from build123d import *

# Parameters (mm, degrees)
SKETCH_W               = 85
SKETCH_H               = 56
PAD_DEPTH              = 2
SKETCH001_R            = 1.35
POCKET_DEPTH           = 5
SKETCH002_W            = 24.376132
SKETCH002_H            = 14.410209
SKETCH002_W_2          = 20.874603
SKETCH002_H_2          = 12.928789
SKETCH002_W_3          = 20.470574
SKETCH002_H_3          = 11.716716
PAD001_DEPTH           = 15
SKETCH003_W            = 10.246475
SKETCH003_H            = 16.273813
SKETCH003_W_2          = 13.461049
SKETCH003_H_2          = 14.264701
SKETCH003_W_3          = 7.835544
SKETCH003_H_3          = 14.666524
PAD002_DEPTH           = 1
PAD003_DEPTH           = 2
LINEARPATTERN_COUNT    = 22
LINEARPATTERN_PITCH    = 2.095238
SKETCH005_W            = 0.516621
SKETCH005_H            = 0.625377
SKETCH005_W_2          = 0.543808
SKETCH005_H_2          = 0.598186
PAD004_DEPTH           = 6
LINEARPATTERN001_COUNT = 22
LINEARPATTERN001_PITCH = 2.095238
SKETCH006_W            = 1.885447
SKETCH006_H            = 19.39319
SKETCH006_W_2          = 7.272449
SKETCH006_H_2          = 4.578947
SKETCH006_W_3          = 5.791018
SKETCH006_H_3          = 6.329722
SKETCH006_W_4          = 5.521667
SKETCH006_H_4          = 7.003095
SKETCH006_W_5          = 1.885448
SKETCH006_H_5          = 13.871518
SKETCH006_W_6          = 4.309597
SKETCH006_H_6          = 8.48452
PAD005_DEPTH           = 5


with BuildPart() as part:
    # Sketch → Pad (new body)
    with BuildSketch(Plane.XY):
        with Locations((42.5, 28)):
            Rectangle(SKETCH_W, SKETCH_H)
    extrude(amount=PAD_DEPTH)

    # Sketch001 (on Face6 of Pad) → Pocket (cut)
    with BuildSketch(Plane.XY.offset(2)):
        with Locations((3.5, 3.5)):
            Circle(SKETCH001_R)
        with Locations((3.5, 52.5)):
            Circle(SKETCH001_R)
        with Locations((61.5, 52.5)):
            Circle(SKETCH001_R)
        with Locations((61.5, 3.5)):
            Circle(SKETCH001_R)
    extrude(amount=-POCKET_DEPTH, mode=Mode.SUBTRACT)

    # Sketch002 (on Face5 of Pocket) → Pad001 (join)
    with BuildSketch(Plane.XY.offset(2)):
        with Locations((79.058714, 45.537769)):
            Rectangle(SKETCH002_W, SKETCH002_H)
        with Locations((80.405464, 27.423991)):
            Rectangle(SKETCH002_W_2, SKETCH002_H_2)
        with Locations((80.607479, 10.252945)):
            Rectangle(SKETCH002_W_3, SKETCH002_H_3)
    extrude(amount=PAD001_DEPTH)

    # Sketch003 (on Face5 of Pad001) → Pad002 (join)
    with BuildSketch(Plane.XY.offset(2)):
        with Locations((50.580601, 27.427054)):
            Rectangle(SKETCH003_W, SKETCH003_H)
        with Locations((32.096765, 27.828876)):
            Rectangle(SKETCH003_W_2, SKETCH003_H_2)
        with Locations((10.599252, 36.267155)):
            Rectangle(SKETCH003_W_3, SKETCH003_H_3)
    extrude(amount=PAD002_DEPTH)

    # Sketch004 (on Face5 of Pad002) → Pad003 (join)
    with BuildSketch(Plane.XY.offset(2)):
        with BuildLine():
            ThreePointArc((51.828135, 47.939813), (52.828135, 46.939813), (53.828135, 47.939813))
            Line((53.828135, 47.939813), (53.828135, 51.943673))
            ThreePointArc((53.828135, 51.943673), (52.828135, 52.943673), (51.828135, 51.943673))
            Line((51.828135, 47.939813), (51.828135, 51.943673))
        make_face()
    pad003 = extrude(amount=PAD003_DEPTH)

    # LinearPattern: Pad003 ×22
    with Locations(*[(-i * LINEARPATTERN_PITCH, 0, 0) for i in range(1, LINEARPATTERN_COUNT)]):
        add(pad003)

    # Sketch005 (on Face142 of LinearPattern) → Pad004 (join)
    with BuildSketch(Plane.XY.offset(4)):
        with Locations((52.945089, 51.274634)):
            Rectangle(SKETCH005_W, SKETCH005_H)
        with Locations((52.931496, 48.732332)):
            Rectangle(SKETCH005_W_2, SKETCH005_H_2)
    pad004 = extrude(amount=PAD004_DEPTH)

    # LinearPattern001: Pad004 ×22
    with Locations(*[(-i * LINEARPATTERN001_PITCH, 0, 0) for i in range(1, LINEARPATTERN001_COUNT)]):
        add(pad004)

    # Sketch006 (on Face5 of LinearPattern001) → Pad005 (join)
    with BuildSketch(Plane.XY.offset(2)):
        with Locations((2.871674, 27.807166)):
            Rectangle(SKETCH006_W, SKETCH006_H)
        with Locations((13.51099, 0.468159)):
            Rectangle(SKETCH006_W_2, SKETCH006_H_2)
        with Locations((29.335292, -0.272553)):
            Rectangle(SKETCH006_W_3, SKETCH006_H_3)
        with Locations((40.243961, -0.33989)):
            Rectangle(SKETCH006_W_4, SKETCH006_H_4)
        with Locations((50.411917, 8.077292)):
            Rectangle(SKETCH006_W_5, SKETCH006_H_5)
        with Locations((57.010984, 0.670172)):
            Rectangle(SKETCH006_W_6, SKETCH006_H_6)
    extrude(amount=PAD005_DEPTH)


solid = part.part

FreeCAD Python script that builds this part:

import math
import FreeCAD as App
import Part
import Sketcher

doc = App.newDocument("Part")
body = doc.addObject("PartDesign::Body", "Body")

sketch1 = body.newObject("Sketcher::SketchObject", "Sketch")
sketch1.AttachmentSupport = (doc.getObject("XY_Plane"), [""])
sketch1.MapMode = "FlatFace"
sketch1.addGeometry([
    Part.LineSegment(App.Vector(0, 56, 0), App.Vector(0, 0, 0)),
    Part.LineSegment(App.Vector(0, 0, 0), App.Vector(85, 0, 0)),
    Part.LineSegment(App.Vector(85, 0, 0), App.Vector(85, 56, 0)),
    Part.LineSegment(App.Vector(85, 56, 0), App.Vector(0, 56, 0)),
], False)
sketch1.addConstraint([
    Sketcher.Constraint("Coincident", 0, 2, 1, 1),
    Sketcher.Constraint("Coincident", 1, 2, 2, 1),
    Sketcher.Constraint("Coincident", 2, 2, 3, 1),
    Sketcher.Constraint("Coincident", 3, 2, 0, 1),
    Sketcher.Constraint("Vertical", 0),
    Sketcher.Constraint("Horizontal", 1),
    Sketcher.Constraint("Vertical", 2),
    Sketcher.Constraint("Horizontal", 3),
    Sketcher.Constraint("Coincident", 0, 2, -1, 1),
    Sketcher.Constraint("DistanceX", 1, 1, 1, 2, 85.0),
    Sketcher.Constraint("DistanceY", 0, 2, 0, 1, 56.0),
])
pad1 = body.newObject("PartDesign::Pad", "Pad")
pad1.Profile = sketch1
pad1.Length = 2

sketch2 = body.newObject("Sketcher::SketchObject", "Sketch001")
sketch2.AttachmentSupport = (doc.getObject("XY_Plane"), [""])
sketch2.MapMode = "FlatFace"
sketch2.AttachmentOffset = App.Placement(App.Vector(0, 0, 2), App.Rotation())
sketch2.addGeometry([
    Part.Circle(App.Vector(3.5, 3.5, 0), App.Vector(0, 0, 1), 1.35),
    Part.Circle(App.Vector(3.5, 52.5, 0), App.Vector(0, 0, 1), 1.35),
    Part.Circle(App.Vector(61.5, 52.5, 0), App.Vector(0, 0, 1), 1.35),
    Part.Circle(App.Vector(61.5, 3.5, 0), App.Vector(0, 0, 1), 1.35),
], False)
sketch2.addConstraint([
    Sketcher.Constraint("Equal", 0, 1),
    Sketcher.Constraint("Equal", 1, 2),
    Sketcher.Constraint("Equal", 2, 3),
    Sketcher.Constraint("Horizontal", 1, 3, 2, 3),
    Sketcher.Constraint("Horizontal", 0, 3, 3, 3),
    Sketcher.Constraint("Vertical", 0, 3, 1, 3),
    Sketcher.Constraint("Vertical", 2, 3, 3, 3),
    Sketcher.Constraint("Diameter", 0, 2.7),
    Sketcher.Constraint("DistanceY", 0, 3, 1, 3, 49.0),
    Sketcher.Constraint("DistanceX", 1, 3, 2, 3, 58.0),
    Sketcher.Constraint("DistanceX", -1, 1, 0, 3, 3.5),
    Sketcher.Constraint("DistanceY", -1, 1, 0, 3, 3.5),
])
pocket1 = body.newObject("PartDesign::Pocket", "Pocket")
pocket1.Profile = sketch2
pocket1.Length = 5

sketch3 = body.newObject("Sketcher::SketchObject", "Sketch002")
sketch3.AttachmentSupport = (doc.getObject("XY_Plane"), [""])
sketch3.MapMode = "FlatFace"
sketch3.AttachmentOffset = App.Placement(App.Vector(0, 0, 2), App.Rotation())
sketch3.addGeometry([
    Part.LineSegment(App.Vector(66.870648, 52.742874, 0), App.Vector(66.870648, 38.332664, 0)),
    Part.LineSegment(App.Vector(66.870648, 38.332664, 0), App.Vector(91.24678, 38.332664, 0)),
    Part.LineSegment(App.Vector(91.24678, 38.332664, 0), App.Vector(91.24678, 52.742874, 0)),
    Part.LineSegment(App.Vector(91.24678, 52.742874, 0), App.Vector(66.870648, 52.742874, 0)),
    Part.LineSegment(App.Vector(69.968163, 33.888385, 0), App.Vector(69.968163, 20.959596, 0)),
    Part.LineSegment(App.Vector(69.968163, 20.959596, 0), App.Vector(90.842765, 20.959596, 0)),
    Part.LineSegment(App.Vector(90.842765, 20.959596, 0), App.Vector(90.842765, 33.888385, 0)),
    Part.LineSegment(App.Vector(90.842765, 33.888385, 0), App.Vector(69.968163, 33.888385, 0)),
    Part.LineSegment(App.Vector(70.372192, 16.111303, 0), App.Vector(70.372192, 4.394587, 0)),
    Part.LineSegment(App.Vector(70.372192, 4.394587, 0), App.Vector(90.842766, 4.394587, 0)),
    Part.LineSegment(App.Vector(90.842766, 4.394587, 0), App.Vector(90.842766, 16.111303, 0)),
    Part.LineSegment(App.Vector(90.842766, 16.111303, 0), App.Vector(70.372192, 16.111303, 0)),
], False)
sketch3.addConstraint([
    Sketcher.Constraint("Coincident", 0, 2, 1, 1),
    Sketcher.Constraint("Coincident", 1, 2, 2, 1),
    Sketcher.Constraint("Coincident", 2, 2, 3, 1),
    Sketcher.Constraint("Coincident", 3, 2, 0, 1),
    Sketcher.Constraint("Coincident", 4, 2, 5, 1),
    Sketcher.Constraint("Coincident", 5, 2, 6, 1),
    Sketcher.Constraint("Coincident", 6, 2, 7, 1),
    Sketcher.Constraint("Coincident", 7, 2, 4, 1),
    Sketcher.Constraint("Coincident", 8, 2, 9, 1),
    Sketcher.Constraint("Coincident", 9, 2, 10, 1),
    Sketcher.Constraint("Coincident", 10, 2, 11, 1),
    Sketcher.Constraint("Coincident", 11, 2, 8, 1),
    Sketcher.Constraint("Vertical", 0),
    Sketcher.Constraint("Horizontal", 1),
    Sketcher.Constraint("Vertical", 2),
    Sketcher.Constraint("Horizontal", 3),
    Sketcher.Constraint("Vertical", 4),
    Sketcher.Constraint("Horizontal", 5),
    Sketcher.Constraint("Vertical", 6),
    Sketcher.Constraint("Horizontal", 7),
    Sketcher.Constraint("Vertical", 8),
    Sketcher.Constraint("Horizontal", 9),
    Sketcher.Constraint("Vertical", 10),
    Sketcher.Constraint("Horizontal", 11),
    Sketcher.Constraint("Vertical", 6, 2, 9, 2),
    Sketcher.Constraint("DistanceX", 1, 1, 1, 2, 24.376132),
    Sketcher.Constraint("DistanceY", 0, 2, 0, 1, 14.410209),
    Sketcher.Constraint("DistanceY", 4, 2, 4, 1, 12.928789),
    Sketcher.Constraint("DistanceY", 8, 2, 7, 2, 29.493798),
    Sketcher.Constraint("DistanceX", 5, 1, 5, 2, 20.874603),
    Sketcher.Constraint("DistanceX", 9, 1, 9, 2, 20.470574),
    Sketcher.Constraint("DistanceY", 8, 2, 8, 1, 11.716716),
    Sketcher.Constraint("DistanceX", -1, 1, 0, 2, 66.870648),
    Sketcher.Constraint("DistanceX", -1, 1, 8, 2, 70.372192),
    Sketcher.Constraint("DistanceY", 4, 2, 0, 2, 17.373068),
    Sketcher.Constraint("DistanceY", -1, 1, 0, 2, 38.332664),
])
pad2 = body.newObject("PartDesign::Pad", "Pad001")
pad2.Profile = sketch3
pad2.Length = 15

sketch4 = body.newObject("Sketcher::SketchObject", "Sketch003")
sketch4.AttachmentSupport = (doc.getObject("XY_Plane"), [""])
sketch4.MapMode = "FlatFace"
sketch4.AttachmentOffset = App.Placement(App.Vector(0, 0, 2), App.Rotation())
sketch4.addGeometry([
    Part.LineSegment(App.Vector(45.457363, 35.563961, 0), App.Vector(45.457363, 19.290147, 0)),
    Part.LineSegment(App.Vector(45.457363, 19.290147, 0), App.Vector(55.703839, 19.290147, 0)),
    Part.LineSegment(App.Vector(55.703839, 19.290147, 0), App.Vector(55.703839, 35.563961, 0)),
    Part.LineSegment(App.Vector(55.703839, 35.563961, 0), App.Vector(45.457363, 35.563961, 0)),
    Part.LineSegment(App.Vector(25.36624, 34.961227, 0), App.Vector(25.36624, 20.696525, 0)),
    Part.LineSegment(App.Vector(25.36624, 20.696525, 0), App.Vector(38.827289, 20.696525, 0)),
    Part.LineSegment(App.Vector(38.827289, 20.696525, 0), App.Vector(38.827289, 34.961227, 0)),
    Part.LineSegment(App.Vector(38.827289, 34.961227, 0), App.Vector(25.36624, 34.961227, 0)),
    Part.LineSegment(App.Vector(6.68148, 43.600417, 0), App.Vector(6.68148, 28.933893, 0)),
    Part.LineSegment(App.Vector(6.68148, 28.933893, 0), App.Vector(14.517024, 28.933893, 0)),
    Part.LineSegment(App.Vector(14.517024, 28.933893, 0), App.Vector(14.517024, 43.600417, 0)),
    Part.LineSegment(App.Vector(14.517024, 43.600417, 0), App.Vector(6.68148, 43.600417, 0)),
], False)
sketch4.addConstraint([
    Sketcher.Constraint("Coincident", 0, 2, 1, 1),
    Sketcher.Constraint("Coincident", 1, 2, 2, 1),
    Sketcher.Constraint("Coincident", 2, 2, 3, 1),
    Sketcher.Constraint("Coincident", 3, 2, 0, 1),
    Sketcher.Constraint("Coincident", 4, 2, 5, 1),
    Sketcher.Constraint("Coincident", 5, 2, 6, 1),
    Sketcher.Constraint("Coincident", 6, 2, 7, 1),
    Sketcher.Constraint("Coincident", 7, 2, 4, 1),
    Sketcher.Constraint("Coincident", 8, 2, 9, 1),
    Sketcher.Constraint("Coincident", 9, 2, 10, 1),
    Sketcher.Constraint("Coincident", 10, 2, 11, 1),
    Sketcher.Constraint("Coincident", 11, 2, 8, 1),
    Sketcher.Constraint("Vertical", 0),
    Sketcher.Constraint("Horizontal", 1),
    Sketcher.Constraint("Vertical", 2),
    Sketcher.Constraint("Horizontal", 3),
    Sketcher.Constraint("Vertical", 4),
    Sketcher.Constraint("Horizontal", 5),
    Sketcher.Constraint("Vertical", 6),
    Sketcher.Constraint("Horizontal", 7),
    Sketcher.Constraint("Vertical", 8),
    Sketcher.Constraint("Horizontal", 9),
    Sketcher.Constraint("Vertical", 10),
    Sketcher.Constraint("Horizontal", 11),
    Sketcher.Constraint("DistanceY", 4, 2, 4, 1, 14.264701),
    Sketcher.Constraint("DistanceX", 5, 1, 5, 2, 13.461049),
    Sketcher.Constraint("DistanceX", 4, 2, 1, 2, 30.337598),
    Sketcher.Constraint("DistanceX", 1, 1, 1, 2, 10.246475),
    Sketcher.Constraint("DistanceX", 9, 1, 9, 2, 7.835544),
    Sketcher.Constraint("DistanceY", 0, 2, 0, 1, 16.273813),
    Sketcher.Constraint("DistanceY", 8, 2, 8, 1, 14.666524),
    Sketcher.Constraint("DistanceX", -1, 1, 1, 2, 55.703839),
    Sketcher.Constraint("DistanceY", -1, 1, 2, 2, 35.563961),
    Sketcher.Constraint("DistanceX", -1, 1, 8, 2, 6.68148),
    Sketcher.Constraint("DistanceY", 0, 2, 4, 2, 1.406378),
    Sketcher.Constraint("DistanceY", 7, 2, 10, 2, 8.63919),
])
pad3 = body.newObject("PartDesign::Pad", "Pad002")
pad3.Profile = sketch4
pad3.Length = 1

sketch5 = body.newObject("Sketcher::SketchObject", "Sketch004")
sketch5.AttachmentSupport = (doc.getObject("XY_Plane"), [""])
sketch5.MapMode = "FlatFace"
sketch5.AttachmentOffset = App.Placement(App.Vector(0, 0, 2), App.Rotation())
sketch5.addGeometry([
    Part.ArcOfCircle(Part.Circle(App.Vector(52.828135, 47.939813, 0), App.Vector(0, 0, 1), 1), math.radians(180), math.radians(360)),
    Part.LineSegment(App.Vector(53.828135, 47.939813, 0), App.Vector(53.828135, 51.943673, 0)),
    Part.ArcOfCircle(Part.Circle(App.Vector(52.828135, 51.943673, 0), App.Vector(0, 0, 1), 1), math.radians(0), math.radians(180)),
    Part.LineSegment(App.Vector(51.828135, 51.943673, 0), App.Vector(51.828135, 47.939813, 0)),
], False)
sketch5.addConstraint([
    Sketcher.Constraint("Tangent", 0, 2, 1, 1),
    Sketcher.Constraint("Tangent", 1, 2, 2, 1),
    Sketcher.Constraint("Tangent", 2, 2, 3, 1),
    Sketcher.Constraint("Tangent", 3, 2, 0, 1),
    Sketcher.Constraint("Vertical", 1),
    Sketcher.Constraint("Vertical", 3),
    Sketcher.Constraint("Radius", 0, 1.0),
    Sketcher.Constraint("DistanceY", 1, 1, 1, 2, 4.00386),
    Sketcher.Constraint("DistanceX", -1, 1, 0, 3, 52.828135),
    Sketcher.Constraint("DistanceY", -1, 1, 0, 3, 47.939813),
])
pad4 = body.newObject("PartDesign::Pad", "Pad003")
pad4.Profile = sketch5
pad4.Length = 2
doc.recompute()

linearpattern = body.newObject("PartDesign::LinearPattern", "LinearPattern")
linearpattern.Originals = [pad4]
linearpattern.Direction = (doc.getObject("X_Axis"), [""])
linearpattern.Mode = "offset"
linearpattern.Offset = 2.095238
linearpattern.Occurrences = 22
linearpattern.Reversed = True
body.Tip = linearpattern

sketch6 = body.newObject("Sketcher::SketchObject", "Sketch005")
sketch6.AttachmentSupport = (doc.getObject("XY_Plane"), [""])
sketch6.MapMode = "FlatFace"
sketch6.AttachmentOffset = App.Placement(App.Vector(0, 0, 4), App.Rotation())
sketch6.addGeometry([
    Part.LineSegment(App.Vector(52.686779, 51.587322, 0), App.Vector(52.686779, 50.961945, 0)),
    Part.LineSegment(App.Vector(52.686779, 50.961945, 0), App.Vector(53.2034, 50.961945, 0)),
    Part.LineSegment(App.Vector(53.2034, 50.961945, 0), App.Vector(53.2034, 51.587322, 0)),
    Part.LineSegment(App.Vector(53.2034, 51.587322, 0), App.Vector(52.686779, 51.587322, 0)),
    Part.LineSegment(App.Vector(52.659592, 49.031425, 0), App.Vector(52.659592, 48.433239, 0)),
    Part.LineSegment(App.Vector(52.659592, 48.433239, 0), App.Vector(53.2034, 48.433239, 0)),
    Part.LineSegment(App.Vector(53.2034, 48.433239, 0), App.Vector(53.2034, 49.031425, 0)),
    Part.LineSegment(App.Vector(53.2034, 49.031425, 0), App.Vector(52.659592, 49.031425, 0)),
], False)
sketch6.addConstraint([
    Sketcher.Constraint("Coincident", 0, 2, 1, 1),
    Sketcher.Constraint("Coincident", 1, 2, 2, 1),
    Sketcher.Constraint("Coincident", 2, 2, 3, 1),
    Sketcher.Constraint("Coincident", 3, 2, 0, 1),
    Sketcher.Constraint("Coincident", 4, 2, 5, 1),
    Sketcher.Constraint("Coincident", 5, 2, 6, 1),
    Sketcher.Constraint("Coincident", 6, 2, 7, 1),
    Sketcher.Constraint("Coincident", 7, 2, 4, 1),
    Sketcher.Constraint("Vertical", 0),
    Sketcher.Constraint("Horizontal", 1),
    Sketcher.Constraint("Vertical", 2),
    Sketcher.Constraint("Horizontal", 3),
    Sketcher.Constraint("Vertical", 4),
    Sketcher.Constraint("Horizontal", 5),
    Sketcher.Constraint("Vertical", 6),
    Sketcher.Constraint("Horizontal", 7),
    Sketcher.Constraint("Vertical", 2, 2, 5, 2),
    Sketcher.Constraint("DistanceX", 1, 1, 1, 2, 0.516621),
    Sketcher.Constraint("DistanceX", -1, 1, 1, 2, 53.2034),
    Sketcher.Constraint("DistanceX", 5, 1, 5, 2, 0.543808),
    Sketcher.Constraint("DistanceY", 0, 2, 0, 1, 0.625377),
    Sketcher.Constraint("DistanceY", 4, 2, 4, 1, 0.598186),
    Sketcher.Constraint("DistanceY", -1, 1, 4, 2, 48.433239),
    Sketcher.Constraint("DistanceY", 6, 2, 1, 2, 1.930521),
])
pad5 = body.newObject("PartDesign::Pad", "Pad004")
pad5.Profile = sketch6
pad5.Length = 6
doc.recompute()

linearpattern2 = body.newObject("PartDesign::LinearPattern", "LinearPattern001")
linearpattern2.Originals = [pad5]
linearpattern2.Direction = (doc.getObject("X_Axis"), [""])
linearpattern2.Mode = "offset"
linearpattern2.Offset = 2.095238
linearpattern2.Occurrences = 22
linearpattern2.Reversed = True
body.Tip = linearpattern2

sketch7 = body.newObject("Sketcher::SketchObject", "Sketch006")
sketch7.AttachmentSupport = (doc.getObject("XY_Plane"), [""])
sketch7.MapMode = "FlatFace"
sketch7.AttachmentOffset = App.Placement(App.Vector(0, 0, 2), App.Rotation())
sketch7.addGeometry([
    Part.LineSegment(App.Vector(1.928951, 37.503761, 0), App.Vector(1.928951, 18.110571, 0)),
    Part.LineSegment(App.Vector(1.928951, 18.110571, 0), App.Vector(3.814398, 18.110571, 0)),
    Part.LineSegment(App.Vector(3.814398, 18.110571, 0), App.Vector(3.814398, 37.503761, 0)),
    Part.LineSegment(App.Vector(3.814398, 37.503761, 0), App.Vector(1.928951, 37.503761, 0)),
    Part.LineSegment(App.Vector(9.874766, 2.757633, 0), App.Vector(9.874766, -1.821314, 0)),
    Part.LineSegment(App.Vector(9.874766, -1.821314, 0), App.Vector(17.147215, -1.821314, 0)),
    Part.LineSegment(App.Vector(17.147215, -1.821314, 0), App.Vector(17.147215, 2.757633, 0)),
    Part.LineSegment(App.Vector(17.147215, 2.757633, 0), App.Vector(9.874766, 2.757633, 0)),
    Part.LineSegment(App.Vector(26.439783, 2.892308, 0), App.Vector(26.439783, -3.437414, 0)),
    Part.LineSegment(App.Vector(26.439783, -3.437414, 0), App.Vector(32.230801, -3.437414, 0)),
    Part.LineSegment(App.Vector(32.230801, -3.437414, 0), App.Vector(32.230801, 2.892308, 0)),
    Part.LineSegment(App.Vector(32.230801, 2.892308, 0), App.Vector(26.439783, 2.892308, 0)),
    Part.LineSegment(App.Vector(37.483128, 3.161658, 0), App.Vector(37.483128, -3.841438, 0)),
    Part.LineSegment(App.Vector(37.483128, -3.841438, 0), App.Vector(43.004795, -3.841438, 0)),
    Part.LineSegment(App.Vector(43.004795, -3.841438, 0), App.Vector(43.004795, 3.161658, 0)),
    Part.LineSegment(App.Vector(43.004795, 3.161658, 0), App.Vector(37.483128, 3.161658, 0)),
    Part.LineSegment(App.Vector(49.469193, 15.013051, 0), App.Vector(49.469193, 1.141533, 0)),
    Part.LineSegment(App.Vector(49.469193, 1.141533, 0), App.Vector(51.354641, 1.141533, 0)),
    Part.LineSegment(App.Vector(51.354641, 1.141533, 0), App.Vector(51.354641, 15.013051, 0)),
    Part.LineSegment(App.Vector(51.354641, 15.013051, 0), App.Vector(49.469193, 15.013051, 0)),
    Part.LineSegment(App.Vector(54.856186, 4.912432, 0), App.Vector(54.856186, -3.572088, 0)),
    Part.LineSegment(App.Vector(54.856186, -3.572088, 0), App.Vector(59.165782, -3.572088, 0)),
    Part.LineSegment(App.Vector(59.165782, -3.572088, 0), App.Vector(59.165782, 4.912432, 0)),
    Part.LineSegment(App.Vector(59.165782, 4.912432, 0), App.Vector(54.856186, 4.912432, 0)),
], False)
sketch7.addConstraint([
    Sketcher.Constraint("Coincident", 0, 2, 1, 1),
    Sketcher.Constraint("Coincident", 1, 2, 2, 1),
    Sketcher.Constraint("Coincident", 2, 2, 3, 1),
    Sketcher.Constraint("Coincident", 3, 2, 0, 1),
    Sketcher.Constraint("Coincident", 4, 2, 5, 1),
    Sketcher.Constraint("Coincident", 5, 2, 6, 1),
    Sketcher.Constraint("Coincident", 6, 2, 7, 1),
    Sketcher.Constraint("Coincident", 7, 2, 4, 1),
    Sketcher.Constraint("Coincident", 8, 2, 9, 1),
    Sketcher.Constraint("Coincident", 9, 2, 10, 1),
    Sketcher.Constraint("Coincident", 10, 2, 11, 1),
    Sketcher.Constraint("Coincident", 11, 2, 8, 1),
    Sketcher.Constraint("Coincident", 12, 2, 13, 1),
    Sketcher.Constraint("Coincident", 13, 2, 14, 1),
    Sketcher.Constraint("Coincident", 14, 2, 15, 1),
    Sketcher.Constraint("Coincident", 15, 2, 12, 1),
    Sketcher.Constraint("Coincident", 16, 2, 17, 1),
    Sketcher.Constraint("Coincident", 17, 2, 18, 1),
    Sketcher.Constraint("Coincident", 18, 2, 19, 1),
    Sketcher.Constraint("Coincident", 19, 2, 16, 1),
    Sketcher.Constraint("Coincident", 20, 2, 21, 1),
    Sketcher.Constraint("Coincident", 21, 2, 22, 1),
    Sketcher.Constraint("Coincident", 22, 2, 23, 1),
    Sketcher.Constraint("Coincident", 23, 2, 20, 1),
    Sketcher.Constraint("Vertical", 0),
    Sketcher.Constraint("Horizontal", 1),
    Sketcher.Constraint("Vertical", 2),
    Sketcher.Constraint("Horizontal", 3),
    Sketcher.Constraint("Vertical", 4),
    Sketcher.Constraint("Horizontal", 5),
    Sketcher.Constraint("Vertical", 6),
    Sketcher.Constraint("Horizontal", 7),
    Sketcher.Constraint("Vertical", 8),
    Sketcher.Constraint("Horizontal", 9),
    Sketcher.Constraint("Vertical", 10),
    Sketcher.Constraint("Horizontal", 11),
    Sketcher.Constraint("Vertical", 12),
    Sketcher.Constraint("Horizontal", 13),
    Sketcher.Constraint("Vertical", 14),
    Sketcher.Constraint("Horizontal", 15),
    Sketcher.Constraint("Vertical", 16),
    Sketcher.Constraint("Horizontal", 17),
    Sketcher.Constraint("Vertical", 18),
    Sketcher.Constraint("Horizontal", 19),
    Sketcher.Constraint("Vertical", 20),
    Sketcher.Constraint("Horizontal", 21),
    Sketcher.Constraint("Vertical", 22),
    Sketcher.Constraint("Horizontal", 23),
    Sketcher.Constraint("Equal", 3, 17),
    Sketcher.Constraint("DistanceX", 5, 1, 5, 2, 7.272449),
    Sketcher.Constraint("DistanceX", 9, 1, 9, 2, 5.791018),
    Sketcher.Constraint("DistanceX", 17, 1, 17, 2, 1.885448),
    Sketcher.Constraint("DistanceY", 0, 2, 0, 1, 19.39319),
    Sketcher.Constraint("DistanceY", 16, 2, 16, 1, 13.871518),
    Sketcher.Constraint("DistanceY", 20, 2, 20, 1, 8.48452),
    Sketcher.Constraint("DistanceX", -1, 1, 9, 2, 32.230801),
    Sketcher.Constraint("DistanceY", 8, 2, 5, 2, 1.6161),
    Sketcher.Constraint("DistanceX", 14, 2, 16, 2, 6.464398),
    Sketcher.Constraint("DistanceY", 17, 2, 22, 2, 3.770899),
    Sketcher.Constraint("DistanceX", 13, 1, 13, 2, 5.521667),
    Sketcher.Constraint("DistanceX", 21, 1, 21, 2, 4.309597),
    Sketcher.Constraint("DistanceY", 4, 2, 4, 1, 4.578947),
    Sketcher.Constraint("DistanceY", 8, 2, 8, 1, 6.329722),
    Sketcher.Constraint("DistanceY", 12, 2, 12, 1, 7.003095),
    Sketcher.Constraint("DistanceX", -1, 1, 0, 2, 1.928951),
    Sketcher.Constraint("DistanceY", -1, 1, 0, 2, 18.110571),
    Sketcher.Constraint("DistanceX", -1, 1, 17, 2, 51.354641),
    Sketcher.Constraint("DistanceY", -1, 1, 18, 2, 15.013051),
    Sketcher.Constraint("DistanceX", 1, 2, 4, 2, 6.060368),
    Sketcher.Constraint("DistanceY", 6, 2, 1, 2, 15.352939),
    Sketcher.Constraint("DistanceY", 10, 2, 14, 2, 0.26935),
    Sketcher.Constraint("DistanceX", 13, 2, 20, 2, 11.851391),
])
pad6 = body.newObject("PartDesign::Pad", "Pad005")
pad6.Profile = sketch7
pad6.Length = 5

doc.recompute()
